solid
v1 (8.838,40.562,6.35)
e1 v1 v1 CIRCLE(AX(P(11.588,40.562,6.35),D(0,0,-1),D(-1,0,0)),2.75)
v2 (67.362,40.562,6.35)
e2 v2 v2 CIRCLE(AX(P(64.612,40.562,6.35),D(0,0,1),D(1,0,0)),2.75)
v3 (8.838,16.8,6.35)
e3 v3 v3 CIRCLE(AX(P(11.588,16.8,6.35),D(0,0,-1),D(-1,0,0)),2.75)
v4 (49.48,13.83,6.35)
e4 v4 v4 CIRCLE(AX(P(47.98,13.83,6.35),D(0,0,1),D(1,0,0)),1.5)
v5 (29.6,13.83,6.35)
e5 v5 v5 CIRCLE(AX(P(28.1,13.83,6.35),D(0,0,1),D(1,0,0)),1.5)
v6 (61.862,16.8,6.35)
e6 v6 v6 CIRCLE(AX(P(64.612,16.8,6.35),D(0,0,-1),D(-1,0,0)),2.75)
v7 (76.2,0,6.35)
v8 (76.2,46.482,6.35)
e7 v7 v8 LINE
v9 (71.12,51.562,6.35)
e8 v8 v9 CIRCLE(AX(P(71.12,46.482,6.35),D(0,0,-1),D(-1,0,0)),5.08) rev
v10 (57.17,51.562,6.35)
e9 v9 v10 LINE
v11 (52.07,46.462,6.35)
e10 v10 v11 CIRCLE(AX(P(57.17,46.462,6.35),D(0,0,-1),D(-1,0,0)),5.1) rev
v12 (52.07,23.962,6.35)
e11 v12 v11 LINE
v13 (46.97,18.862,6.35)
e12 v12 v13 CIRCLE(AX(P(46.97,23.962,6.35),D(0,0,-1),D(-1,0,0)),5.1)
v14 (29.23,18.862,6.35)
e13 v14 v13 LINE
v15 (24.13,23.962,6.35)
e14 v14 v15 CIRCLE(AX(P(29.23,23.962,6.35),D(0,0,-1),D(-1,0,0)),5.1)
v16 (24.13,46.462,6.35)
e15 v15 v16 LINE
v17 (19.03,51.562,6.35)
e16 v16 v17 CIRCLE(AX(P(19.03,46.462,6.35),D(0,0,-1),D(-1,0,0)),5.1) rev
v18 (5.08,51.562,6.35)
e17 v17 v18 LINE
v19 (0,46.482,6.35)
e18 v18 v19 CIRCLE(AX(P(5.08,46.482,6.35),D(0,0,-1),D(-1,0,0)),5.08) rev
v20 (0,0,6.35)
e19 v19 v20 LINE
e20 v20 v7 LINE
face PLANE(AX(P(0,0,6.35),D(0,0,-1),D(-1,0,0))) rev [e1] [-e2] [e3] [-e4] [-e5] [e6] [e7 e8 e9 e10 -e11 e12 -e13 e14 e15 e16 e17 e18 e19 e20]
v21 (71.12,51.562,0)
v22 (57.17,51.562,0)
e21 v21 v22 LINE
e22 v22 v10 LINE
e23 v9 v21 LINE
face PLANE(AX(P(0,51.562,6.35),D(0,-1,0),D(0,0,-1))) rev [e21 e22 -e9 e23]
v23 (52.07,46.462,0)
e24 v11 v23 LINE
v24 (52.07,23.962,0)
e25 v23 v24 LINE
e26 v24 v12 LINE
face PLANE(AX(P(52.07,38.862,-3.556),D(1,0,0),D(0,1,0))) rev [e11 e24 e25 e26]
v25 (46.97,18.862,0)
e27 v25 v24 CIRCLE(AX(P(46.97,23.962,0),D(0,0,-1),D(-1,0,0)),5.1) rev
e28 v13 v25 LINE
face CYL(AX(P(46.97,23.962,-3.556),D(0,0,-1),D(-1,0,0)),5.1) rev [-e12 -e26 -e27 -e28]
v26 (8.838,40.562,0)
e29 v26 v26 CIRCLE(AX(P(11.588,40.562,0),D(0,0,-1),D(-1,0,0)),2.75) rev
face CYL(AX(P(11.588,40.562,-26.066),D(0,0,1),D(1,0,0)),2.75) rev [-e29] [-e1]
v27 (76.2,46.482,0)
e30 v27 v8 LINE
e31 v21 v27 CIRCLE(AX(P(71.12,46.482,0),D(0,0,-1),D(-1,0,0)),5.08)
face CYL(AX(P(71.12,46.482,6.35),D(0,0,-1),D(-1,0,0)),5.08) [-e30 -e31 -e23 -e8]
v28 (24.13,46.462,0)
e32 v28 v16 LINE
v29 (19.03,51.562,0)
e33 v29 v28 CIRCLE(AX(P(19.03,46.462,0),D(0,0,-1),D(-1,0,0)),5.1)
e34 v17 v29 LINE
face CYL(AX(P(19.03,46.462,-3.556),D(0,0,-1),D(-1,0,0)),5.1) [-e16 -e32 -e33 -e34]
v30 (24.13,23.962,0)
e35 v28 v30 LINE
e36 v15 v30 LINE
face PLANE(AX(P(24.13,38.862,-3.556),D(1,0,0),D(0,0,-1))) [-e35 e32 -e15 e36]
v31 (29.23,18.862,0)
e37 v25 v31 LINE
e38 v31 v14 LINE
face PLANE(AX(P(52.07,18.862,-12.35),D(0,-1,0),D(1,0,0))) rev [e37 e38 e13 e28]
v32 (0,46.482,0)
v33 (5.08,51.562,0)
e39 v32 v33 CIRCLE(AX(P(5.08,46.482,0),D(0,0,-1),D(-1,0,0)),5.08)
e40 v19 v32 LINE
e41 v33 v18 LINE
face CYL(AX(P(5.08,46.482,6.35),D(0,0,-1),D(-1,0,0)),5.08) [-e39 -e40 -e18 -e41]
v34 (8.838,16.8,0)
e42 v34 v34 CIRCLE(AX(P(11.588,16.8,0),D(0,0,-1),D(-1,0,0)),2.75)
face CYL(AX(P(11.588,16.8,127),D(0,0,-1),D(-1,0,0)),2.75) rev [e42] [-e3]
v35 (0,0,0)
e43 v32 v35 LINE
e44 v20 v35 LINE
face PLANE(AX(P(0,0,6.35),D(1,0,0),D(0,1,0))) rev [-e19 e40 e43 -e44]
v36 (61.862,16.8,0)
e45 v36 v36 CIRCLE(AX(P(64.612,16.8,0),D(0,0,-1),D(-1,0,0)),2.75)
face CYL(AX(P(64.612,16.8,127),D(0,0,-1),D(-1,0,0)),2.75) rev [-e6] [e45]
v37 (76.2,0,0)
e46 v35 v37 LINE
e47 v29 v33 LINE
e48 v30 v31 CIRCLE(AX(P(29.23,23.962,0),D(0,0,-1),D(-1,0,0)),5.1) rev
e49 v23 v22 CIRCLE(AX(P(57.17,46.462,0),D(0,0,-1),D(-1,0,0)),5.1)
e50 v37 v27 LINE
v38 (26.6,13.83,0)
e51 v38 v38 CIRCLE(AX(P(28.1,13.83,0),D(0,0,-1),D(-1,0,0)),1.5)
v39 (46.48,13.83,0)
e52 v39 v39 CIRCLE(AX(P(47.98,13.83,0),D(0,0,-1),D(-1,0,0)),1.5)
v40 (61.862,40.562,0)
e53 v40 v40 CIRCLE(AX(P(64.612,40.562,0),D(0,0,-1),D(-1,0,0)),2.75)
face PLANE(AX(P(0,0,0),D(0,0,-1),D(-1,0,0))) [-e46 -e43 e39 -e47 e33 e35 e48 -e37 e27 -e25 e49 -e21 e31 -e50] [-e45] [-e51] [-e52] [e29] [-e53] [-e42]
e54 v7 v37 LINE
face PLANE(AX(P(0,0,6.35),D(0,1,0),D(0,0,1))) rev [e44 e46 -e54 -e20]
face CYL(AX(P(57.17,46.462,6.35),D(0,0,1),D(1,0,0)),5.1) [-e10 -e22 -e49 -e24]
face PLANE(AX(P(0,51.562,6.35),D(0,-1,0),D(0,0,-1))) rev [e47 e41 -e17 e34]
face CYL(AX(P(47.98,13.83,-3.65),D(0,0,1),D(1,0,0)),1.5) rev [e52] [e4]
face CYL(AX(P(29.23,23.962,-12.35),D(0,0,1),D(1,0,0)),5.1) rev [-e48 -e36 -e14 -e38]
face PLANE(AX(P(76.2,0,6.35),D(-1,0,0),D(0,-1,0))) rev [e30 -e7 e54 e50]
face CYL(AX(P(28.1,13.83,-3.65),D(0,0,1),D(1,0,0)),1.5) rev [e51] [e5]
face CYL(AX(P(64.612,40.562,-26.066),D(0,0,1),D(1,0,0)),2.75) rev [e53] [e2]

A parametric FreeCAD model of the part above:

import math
import FreeCAD as App
import Part
import Sketcher
Q = App.Units.Quantity


def edges_at(feature, points):
    """Names of the edges that pass closest to the given points."""
    edges = feature.Shape.Edges
    near = lambda p: min(range(len(edges)), key=lambda i: edges[i].distToShape(Part.Vertex(*p))[0])
    return sorted({f"Edge{near(p) + 1}" for p in points})

doc = App.newDocument("Part")
body = doc.addObject("PartDesign::Body", "Body")

# Sketch on XY plane
sketch1 = body.newObject("Sketcher::SketchObject", "Sketch")
sketch1.AttachmentSupport = (doc.getObject("XY_Plane"), [""])
sketch1.MapMode = "FlatFace"
sketch1.addGeometry([
    Part.LineSegment(App.Vector(0, 51.562, 0), App.Vector(0, 0, 0)),
    Part.LineSegment(App.Vector(0, 0, 0), App.Vector(76.2, 0, 0)),
    Part.LineSegment(App.Vector(76.2, 0, 0), App.Vector(76.2, 51.562, 0)),
    Part.LineSegment(App.Vector(76.2, 51.562, 0), App.Vector(0, 51.562, 0)),
], False)
sketch1.addConstraint([
    Sketcher.Constraint("Coincident", 0, 2, 1, 1),
    Sketcher.Constraint("Coincident", 1, 2, 2, 1),
    Sketcher.Constraint("Coincident", 2, 2, 3, 1),
    Sketcher.Constraint("Coincident", 3, 2, 0, 1),
    Sketcher.Constraint("Vertical", 0),
    Sketcher.Constraint("Horizontal", 1),
    Sketcher.Constraint("Vertical", 2),
    Sketcher.Constraint("Horizontal", 3),
    Sketcher.Constraint("Coincident", 0, 2, -1, 1),
    Sketcher.Constraint("DistanceX", 1, 1, 1, 2, Q("3 in")),
    Sketcher.Constraint("DistanceY", 0, 2, 0, 1, Q("2.03 in")),
])
pad1 = body.newObject("PartDesign::Pad", "Pad")
pad1.Profile = sketch1
pad1.Length = Q("0.25 in")

# Sketch on XY plane
sketch2 = body.newObject("Sketcher::SketchObject", "Sketch001")
sketch2.AttachmentSupport = (doc.getObject("XY_Plane"), [""])
sketch2.MapMode = "FlatFace"
sketch2.AttachmentOffset = App.Placement(App.Vector(0, 0, 0.25 * 25.4), App.Rotation())
sketch2.addGeometry([
    Part.LineSegment(App.Vector(24.13, 51.562, 0), App.Vector(24.13, 38.862, 0)),
    Part.LineSegment(App.Vector(24.13, 38.862, 0), App.Vector(52.07, 38.862, 0)),
    Part.LineSegment(App.Vector(52.07, 38.862, 0), App.Vector(52.07, 51.562, 0)),
    Part.LineSegment(App.Vector(52.07, 51.562, 0), App.Vector(24.13, 51.562, 0)),
], False)
sketch2.addConstraint([
    Sketcher.Constraint("Coincident", 0, 2, 1, 1),
    Sketcher.Constraint("Coincident", 1, 2, 2, 1),
    Sketcher.Constraint("Coincident", 2, 2, 3, 1),
    Sketcher.Constraint("Coincident", 3, 2, 0, 1),
    Sketcher.Constraint("Vertical", 0),
    Sketcher.Constraint("Horizontal", 1),
    Sketcher.Constraint("Vertical", 2),
    Sketcher.Constraint("Horizontal", 3),
    Sketcher.Constraint("DistanceX", 1, 1, 1, 2, Q("1.1 in")),
    Sketcher.Constraint("DistanceY", 0, 2, 0, 1, Q("0.5 in")),
    Sketcher.Constraint("DistanceX", -1, 1, 0, 2, Q("0.95 in")),
    Sketcher.Constraint("DistanceY", -1, 1, 0, 2, Q("1.53 in")),
])
pocket1 = body.newObject("PartDesign::Pocket", "Pocket")
pocket1.Profile = sketch2
pocket1.Length = Q("0.39 in")
doc.recompute()

fillet = body.newObject("PartDesign::Fillet", "Fillet")
fillet.Base = (pocket1, edges_at(pocket1, [(0, 51.562, 3.175), (76.2, 51.562, 3.175)]))
fillet.Radius = Q("0.2 in")

# Sketch on XY plane
sketch3 = body.newObject("Sketcher::SketchObject", "Sketch002")
sketch3.AttachmentSupport = (doc.getObject("XY_Plane"), [""])
sketch3.MapMode = "FlatFace"
sketch3.addGeometry([
    Part.Circle(App.Vector(11.588, 16.8, 0), App.Vector(0, 0, 1), 2.75),
    Part.Circle(App.Vector(64.612, 16.8, 0), App.Vector(0, 0, 1), 2.75),
], False)
sketch3.addConstraint([
    Sketcher.Constraint("Equal", 0, 1),
    Sketcher.Constraint("Horizontal", 0, 3, 1, 3),
    Sketcher.Constraint("Diameter", 0, Q("5.5 mm")),
    Sketcher.Constraint("DistanceX", -1, 1, 0, 3, Q("11.588 mm")),
    Sketcher.Constraint("DistanceY", -1, 1, 0, 3, Q("16.8 mm")),
    Sketcher.Constraint("DistanceX", -1, 1, 1, 3, Q("64.612 mm")),
])
pocket2 = body.newObject("PartDesign::Pocket", "Pocket001")
pocket2.Profile = sketch3
pocket2.Length = Q("5 in")
pocket2.Reversed = True

# Sketch on XY plane
sketch4 = body.newObject("Sketcher::SketchObject", "Sketch003")
sketch4.AttachmentSupport = (doc.getObject("XY_Plane"), [""])
sketch4.MapMode = "FlatFace"
sketch4.AttachmentOffset = App.Placement(App.Vector(0, 0, 0.25 * 25.4), App.Rotation())
sketch4.addGeometry([
    Part.ArcOfCircle(Part.Circle(App.Vector(64.612, 40.562, 0), App.Vector(0, 0, 1), 2.75), math.radians(90), math.radians(270)),
    Part.ArcOfCircle(Part.Circle(App.Vector(64.612, 40.562, 0), App.Vector(0, 0, 1), 2.75), math.radians(-90), math.radians(0)),
    Part.ArcOfCircle(Part.Circle(App.Vector(64.612, 40.562, 0), App.Vector(0, 0, 1), 2.75), math.radians(0), math.radians(90)),
], False)
sketch4.addConstraint([
    Sketcher.Constraint("Tangent", 0, 2, 1, 1),
    Sketcher.Constraint("Tangent", 1, 2, 2, 1),
    Sketcher.Constraint("Tangent", 2, 2, 0, 1),
    Sketcher.Constraint("Horizontal", 2, 3, 1, 2),
    Sketcher.Constraint("Vertical", 2, 3, 0, 2),
    Sketcher.Constraint("Vertical", 0, 2, 2, 2),
    Sketcher.Constraint("Radius", 0, Q("2.75 mm")),
    Sketcher.Constraint("DistanceX", -1, 1, 0, 3, Q("64.612 mm")),
    Sketcher.Constraint("DistanceY", -1, 1, 0, 3, Q("40.562 mm")),
])
pocket3 = body.newObject("PartDesign::Pocket", "Pocket002")
pocket3.Profile = sketch4
pocket3.Length = 32.416
doc.recompute()

datumplane = body.newObject("PartDesign::Plane", "DatumPlane")
datumplane.AttachmentSupport = (doc.getObject("YZ_Plane"), [""])
datumplane.MapMode = "FlatFace"
datumplane.AttachmentOffset = App.Placement(App.Vector(0, 0, 1.5 * 25.4), App.Rotation())
mirrored = body.newObject("PartDesign::Mirrored", "Mirrored")
mirrored.Originals = [pocket3]
mirrored.MirrorPlane = (datumplane, [""])
body.Tip = mirrored

# Sketch on XY plane
sketch5 = body.newObject("Sketcher::SketchObject", "Sketch004")
sketch5.AttachmentSupport = (doc.getObject("XY_Plane"), [""])
sketch5.MapMode = "FlatFace"
sketch5.AttachmentOffset = App.Placement(App.Vector(0, 0, 0.25 * 25.4), App.Rotation())
sketch5.addGeometry([
    Part.LineSegment(App.Vector(24.13, 38.862, 0), App.Vector(24.13, 18.862, 0)),
    Part.LineSegment(App.Vector(24.13, 18.862, 0), App.Vector(52.07, 18.862, 0)),
    Part.LineSegment(App.Vector(52.07, 18.862, 0), App.Vector(52.07, 38.862, 0)),
    Part.LineSegment(App.Vector(52.07, 38.862, 0), App.Vector(24.13, 38.862, 0)),
], False)
sketch5.addConstraint([
    Sketcher.Constraint("Coincident", 0, 2, 1, 1),
    Sketcher.Constraint("Coincident", 1, 2, 2, 1),
    Sketcher.Constraint("Coincident", 2, 2, 3, 1),
    Sketcher.Constraint("Coincident", 3, 2, 0, 1),
    Sketcher.Constraint("Vertical", 0),
    Sketcher.Constraint("Horizontal", 1),
    Sketcher.Constraint("Vertical", 2),
    Sketcher.Constraint("Horizontal", 3),
    Sketcher.Constraint("DistanceX", 1, 1, 1, 2, Q("1.1 in")),
    Sketcher.Constraint("DistanceX", -1, 1, 0, 2, Q("0.95 in")),
    Sketcher.Constraint("DistanceY", -1, 1, 2, 2, Q("1.53 in")),
    Sketcher.Constraint("DistanceY", 0, 2, 0, 1, Q("20 mm")),
])
pocket4 = body.newObject("PartDesign::Pocket", "Pocket003")
pocket4.Profile = sketch5
pocket4.Length = 18.7
doc.recompute()

fillet2 = body.newObject("PartDesign::Fillet", "Fillet001")
fillet2.Base = (pocket4, edges_at(pocket4, [
    (52.07, 51.562, 3.175),
    (24.13, 51.562, 3.175),
    (52.07, 18.862, 3.175),
    (24.13, 18.862, 3.175),
]))
fillet2.Radius = 5.1

# Sketch on XY plane
sketch6 = body.newObject("Sketcher::SketchObject", "Sketch005")
sketch6.AttachmentSupport = (doc.getObject("XY_Plane"), [""])
sketch6.MapMode = "FlatFace"
sketch6.AttachmentOffset = App.Placement(App.Vector(0, 0, 0.25 * 25.4), App.Rotation())
sketch6.addGeometry([
    Part.Circle(App.Vector(47.98, 13.83, 0), App.Vector(0, 0, 1), 1.5),
    Part.Circle(App.Vector(28.1, 13.83, 0), App.Vector(0, 0, 1), 1.5),
], False)
sketch6.addConstraint([
    Sketcher.Constraint("Equal", 0, 1),
    Sketcher.Constraint("Horizontal", 0, 3, 1, 3),
    Sketcher.Constraint("Diameter", 0, Q("3 mm")),
    Sketcher.Constraint("DistanceX", -1, 1, 0, 3, Q("47.98 mm")),
    Sketcher.Constraint("DistanceY", -1, 1, 0, 3, Q("13.83 mm")),
    Sketcher.Constraint("DistanceX", -1, 1, 1, 3, Q("28.1 mm")),
])
pocket5 = body.newObject("PartDesign::Pocket", "Pocket004")
pocket5.Profile = sketch6
pocket5.Length = 10

doc.recompute()
